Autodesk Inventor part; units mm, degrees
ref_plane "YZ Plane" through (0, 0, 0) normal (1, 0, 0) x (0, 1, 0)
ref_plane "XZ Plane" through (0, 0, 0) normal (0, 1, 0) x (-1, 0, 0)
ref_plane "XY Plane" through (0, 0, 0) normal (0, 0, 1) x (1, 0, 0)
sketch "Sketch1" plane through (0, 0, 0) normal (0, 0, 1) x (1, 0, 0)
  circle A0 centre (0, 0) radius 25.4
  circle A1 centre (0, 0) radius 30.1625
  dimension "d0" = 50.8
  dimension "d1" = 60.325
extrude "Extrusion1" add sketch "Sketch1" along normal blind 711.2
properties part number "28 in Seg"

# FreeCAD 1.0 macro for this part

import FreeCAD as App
import Part
import Sketcher

V = App.Vector
Q = App.Units.Quantity

doc = App.newDocument("Part")
params = doc.addObject("Spreadsheet::Sheet", "Params")
for row, (alias, value) in enumerate([
    ("sketch1_diameter", "2 in"),
    ("sketch1_diameter2", "2.375 in"),
    ("pad1_length", "28 in"),
], start=1):
    params.set(f"A{row}", alias)
    params.set(f"B{row}", "=" + value)
    params.setAlias(f"B{row}", alias)

body = doc.addObject("PartDesign::Body", "Body")

# Sketch on XY plane
sketch1 = body.newObject("Sketcher::SketchObject", "Sketch")
sketch1.AttachmentSupport = (doc.getObject("XY_Plane"), [""])
sketch1.MapMode = "FlatFace"
sketch1.addGeometry([
    Part.Circle(V(0, 0, 0), V(0, 0, 1), 30),
    Part.Circle(V(0, 0, 0), V(0, 0, 1), 25),
], False)
sketch1.addConstraint([
    Sketcher.Constraint("Coincident", 0, 3, -1, 1),
    Sketcher.Constraint("Coincident", 1, 3, -1, 1),
    Sketcher.Constraint("Diameter", 1, Q("2 in")),
    Sketcher.Constraint("Diameter", 0, Q("2.375 in")),
])
sketch1.setExpression("Constraints[2]", "Params.sketch1_diameter")
sketch1.setExpression("Constraints[3]", "Params.sketch1_diameter2")
pad1 = body.newObject("PartDesign::Pad", "Pad")
pad1.Profile = sketch1
pad1.setExpression("Length", "Params.pad1_length")

doc.recompute()
